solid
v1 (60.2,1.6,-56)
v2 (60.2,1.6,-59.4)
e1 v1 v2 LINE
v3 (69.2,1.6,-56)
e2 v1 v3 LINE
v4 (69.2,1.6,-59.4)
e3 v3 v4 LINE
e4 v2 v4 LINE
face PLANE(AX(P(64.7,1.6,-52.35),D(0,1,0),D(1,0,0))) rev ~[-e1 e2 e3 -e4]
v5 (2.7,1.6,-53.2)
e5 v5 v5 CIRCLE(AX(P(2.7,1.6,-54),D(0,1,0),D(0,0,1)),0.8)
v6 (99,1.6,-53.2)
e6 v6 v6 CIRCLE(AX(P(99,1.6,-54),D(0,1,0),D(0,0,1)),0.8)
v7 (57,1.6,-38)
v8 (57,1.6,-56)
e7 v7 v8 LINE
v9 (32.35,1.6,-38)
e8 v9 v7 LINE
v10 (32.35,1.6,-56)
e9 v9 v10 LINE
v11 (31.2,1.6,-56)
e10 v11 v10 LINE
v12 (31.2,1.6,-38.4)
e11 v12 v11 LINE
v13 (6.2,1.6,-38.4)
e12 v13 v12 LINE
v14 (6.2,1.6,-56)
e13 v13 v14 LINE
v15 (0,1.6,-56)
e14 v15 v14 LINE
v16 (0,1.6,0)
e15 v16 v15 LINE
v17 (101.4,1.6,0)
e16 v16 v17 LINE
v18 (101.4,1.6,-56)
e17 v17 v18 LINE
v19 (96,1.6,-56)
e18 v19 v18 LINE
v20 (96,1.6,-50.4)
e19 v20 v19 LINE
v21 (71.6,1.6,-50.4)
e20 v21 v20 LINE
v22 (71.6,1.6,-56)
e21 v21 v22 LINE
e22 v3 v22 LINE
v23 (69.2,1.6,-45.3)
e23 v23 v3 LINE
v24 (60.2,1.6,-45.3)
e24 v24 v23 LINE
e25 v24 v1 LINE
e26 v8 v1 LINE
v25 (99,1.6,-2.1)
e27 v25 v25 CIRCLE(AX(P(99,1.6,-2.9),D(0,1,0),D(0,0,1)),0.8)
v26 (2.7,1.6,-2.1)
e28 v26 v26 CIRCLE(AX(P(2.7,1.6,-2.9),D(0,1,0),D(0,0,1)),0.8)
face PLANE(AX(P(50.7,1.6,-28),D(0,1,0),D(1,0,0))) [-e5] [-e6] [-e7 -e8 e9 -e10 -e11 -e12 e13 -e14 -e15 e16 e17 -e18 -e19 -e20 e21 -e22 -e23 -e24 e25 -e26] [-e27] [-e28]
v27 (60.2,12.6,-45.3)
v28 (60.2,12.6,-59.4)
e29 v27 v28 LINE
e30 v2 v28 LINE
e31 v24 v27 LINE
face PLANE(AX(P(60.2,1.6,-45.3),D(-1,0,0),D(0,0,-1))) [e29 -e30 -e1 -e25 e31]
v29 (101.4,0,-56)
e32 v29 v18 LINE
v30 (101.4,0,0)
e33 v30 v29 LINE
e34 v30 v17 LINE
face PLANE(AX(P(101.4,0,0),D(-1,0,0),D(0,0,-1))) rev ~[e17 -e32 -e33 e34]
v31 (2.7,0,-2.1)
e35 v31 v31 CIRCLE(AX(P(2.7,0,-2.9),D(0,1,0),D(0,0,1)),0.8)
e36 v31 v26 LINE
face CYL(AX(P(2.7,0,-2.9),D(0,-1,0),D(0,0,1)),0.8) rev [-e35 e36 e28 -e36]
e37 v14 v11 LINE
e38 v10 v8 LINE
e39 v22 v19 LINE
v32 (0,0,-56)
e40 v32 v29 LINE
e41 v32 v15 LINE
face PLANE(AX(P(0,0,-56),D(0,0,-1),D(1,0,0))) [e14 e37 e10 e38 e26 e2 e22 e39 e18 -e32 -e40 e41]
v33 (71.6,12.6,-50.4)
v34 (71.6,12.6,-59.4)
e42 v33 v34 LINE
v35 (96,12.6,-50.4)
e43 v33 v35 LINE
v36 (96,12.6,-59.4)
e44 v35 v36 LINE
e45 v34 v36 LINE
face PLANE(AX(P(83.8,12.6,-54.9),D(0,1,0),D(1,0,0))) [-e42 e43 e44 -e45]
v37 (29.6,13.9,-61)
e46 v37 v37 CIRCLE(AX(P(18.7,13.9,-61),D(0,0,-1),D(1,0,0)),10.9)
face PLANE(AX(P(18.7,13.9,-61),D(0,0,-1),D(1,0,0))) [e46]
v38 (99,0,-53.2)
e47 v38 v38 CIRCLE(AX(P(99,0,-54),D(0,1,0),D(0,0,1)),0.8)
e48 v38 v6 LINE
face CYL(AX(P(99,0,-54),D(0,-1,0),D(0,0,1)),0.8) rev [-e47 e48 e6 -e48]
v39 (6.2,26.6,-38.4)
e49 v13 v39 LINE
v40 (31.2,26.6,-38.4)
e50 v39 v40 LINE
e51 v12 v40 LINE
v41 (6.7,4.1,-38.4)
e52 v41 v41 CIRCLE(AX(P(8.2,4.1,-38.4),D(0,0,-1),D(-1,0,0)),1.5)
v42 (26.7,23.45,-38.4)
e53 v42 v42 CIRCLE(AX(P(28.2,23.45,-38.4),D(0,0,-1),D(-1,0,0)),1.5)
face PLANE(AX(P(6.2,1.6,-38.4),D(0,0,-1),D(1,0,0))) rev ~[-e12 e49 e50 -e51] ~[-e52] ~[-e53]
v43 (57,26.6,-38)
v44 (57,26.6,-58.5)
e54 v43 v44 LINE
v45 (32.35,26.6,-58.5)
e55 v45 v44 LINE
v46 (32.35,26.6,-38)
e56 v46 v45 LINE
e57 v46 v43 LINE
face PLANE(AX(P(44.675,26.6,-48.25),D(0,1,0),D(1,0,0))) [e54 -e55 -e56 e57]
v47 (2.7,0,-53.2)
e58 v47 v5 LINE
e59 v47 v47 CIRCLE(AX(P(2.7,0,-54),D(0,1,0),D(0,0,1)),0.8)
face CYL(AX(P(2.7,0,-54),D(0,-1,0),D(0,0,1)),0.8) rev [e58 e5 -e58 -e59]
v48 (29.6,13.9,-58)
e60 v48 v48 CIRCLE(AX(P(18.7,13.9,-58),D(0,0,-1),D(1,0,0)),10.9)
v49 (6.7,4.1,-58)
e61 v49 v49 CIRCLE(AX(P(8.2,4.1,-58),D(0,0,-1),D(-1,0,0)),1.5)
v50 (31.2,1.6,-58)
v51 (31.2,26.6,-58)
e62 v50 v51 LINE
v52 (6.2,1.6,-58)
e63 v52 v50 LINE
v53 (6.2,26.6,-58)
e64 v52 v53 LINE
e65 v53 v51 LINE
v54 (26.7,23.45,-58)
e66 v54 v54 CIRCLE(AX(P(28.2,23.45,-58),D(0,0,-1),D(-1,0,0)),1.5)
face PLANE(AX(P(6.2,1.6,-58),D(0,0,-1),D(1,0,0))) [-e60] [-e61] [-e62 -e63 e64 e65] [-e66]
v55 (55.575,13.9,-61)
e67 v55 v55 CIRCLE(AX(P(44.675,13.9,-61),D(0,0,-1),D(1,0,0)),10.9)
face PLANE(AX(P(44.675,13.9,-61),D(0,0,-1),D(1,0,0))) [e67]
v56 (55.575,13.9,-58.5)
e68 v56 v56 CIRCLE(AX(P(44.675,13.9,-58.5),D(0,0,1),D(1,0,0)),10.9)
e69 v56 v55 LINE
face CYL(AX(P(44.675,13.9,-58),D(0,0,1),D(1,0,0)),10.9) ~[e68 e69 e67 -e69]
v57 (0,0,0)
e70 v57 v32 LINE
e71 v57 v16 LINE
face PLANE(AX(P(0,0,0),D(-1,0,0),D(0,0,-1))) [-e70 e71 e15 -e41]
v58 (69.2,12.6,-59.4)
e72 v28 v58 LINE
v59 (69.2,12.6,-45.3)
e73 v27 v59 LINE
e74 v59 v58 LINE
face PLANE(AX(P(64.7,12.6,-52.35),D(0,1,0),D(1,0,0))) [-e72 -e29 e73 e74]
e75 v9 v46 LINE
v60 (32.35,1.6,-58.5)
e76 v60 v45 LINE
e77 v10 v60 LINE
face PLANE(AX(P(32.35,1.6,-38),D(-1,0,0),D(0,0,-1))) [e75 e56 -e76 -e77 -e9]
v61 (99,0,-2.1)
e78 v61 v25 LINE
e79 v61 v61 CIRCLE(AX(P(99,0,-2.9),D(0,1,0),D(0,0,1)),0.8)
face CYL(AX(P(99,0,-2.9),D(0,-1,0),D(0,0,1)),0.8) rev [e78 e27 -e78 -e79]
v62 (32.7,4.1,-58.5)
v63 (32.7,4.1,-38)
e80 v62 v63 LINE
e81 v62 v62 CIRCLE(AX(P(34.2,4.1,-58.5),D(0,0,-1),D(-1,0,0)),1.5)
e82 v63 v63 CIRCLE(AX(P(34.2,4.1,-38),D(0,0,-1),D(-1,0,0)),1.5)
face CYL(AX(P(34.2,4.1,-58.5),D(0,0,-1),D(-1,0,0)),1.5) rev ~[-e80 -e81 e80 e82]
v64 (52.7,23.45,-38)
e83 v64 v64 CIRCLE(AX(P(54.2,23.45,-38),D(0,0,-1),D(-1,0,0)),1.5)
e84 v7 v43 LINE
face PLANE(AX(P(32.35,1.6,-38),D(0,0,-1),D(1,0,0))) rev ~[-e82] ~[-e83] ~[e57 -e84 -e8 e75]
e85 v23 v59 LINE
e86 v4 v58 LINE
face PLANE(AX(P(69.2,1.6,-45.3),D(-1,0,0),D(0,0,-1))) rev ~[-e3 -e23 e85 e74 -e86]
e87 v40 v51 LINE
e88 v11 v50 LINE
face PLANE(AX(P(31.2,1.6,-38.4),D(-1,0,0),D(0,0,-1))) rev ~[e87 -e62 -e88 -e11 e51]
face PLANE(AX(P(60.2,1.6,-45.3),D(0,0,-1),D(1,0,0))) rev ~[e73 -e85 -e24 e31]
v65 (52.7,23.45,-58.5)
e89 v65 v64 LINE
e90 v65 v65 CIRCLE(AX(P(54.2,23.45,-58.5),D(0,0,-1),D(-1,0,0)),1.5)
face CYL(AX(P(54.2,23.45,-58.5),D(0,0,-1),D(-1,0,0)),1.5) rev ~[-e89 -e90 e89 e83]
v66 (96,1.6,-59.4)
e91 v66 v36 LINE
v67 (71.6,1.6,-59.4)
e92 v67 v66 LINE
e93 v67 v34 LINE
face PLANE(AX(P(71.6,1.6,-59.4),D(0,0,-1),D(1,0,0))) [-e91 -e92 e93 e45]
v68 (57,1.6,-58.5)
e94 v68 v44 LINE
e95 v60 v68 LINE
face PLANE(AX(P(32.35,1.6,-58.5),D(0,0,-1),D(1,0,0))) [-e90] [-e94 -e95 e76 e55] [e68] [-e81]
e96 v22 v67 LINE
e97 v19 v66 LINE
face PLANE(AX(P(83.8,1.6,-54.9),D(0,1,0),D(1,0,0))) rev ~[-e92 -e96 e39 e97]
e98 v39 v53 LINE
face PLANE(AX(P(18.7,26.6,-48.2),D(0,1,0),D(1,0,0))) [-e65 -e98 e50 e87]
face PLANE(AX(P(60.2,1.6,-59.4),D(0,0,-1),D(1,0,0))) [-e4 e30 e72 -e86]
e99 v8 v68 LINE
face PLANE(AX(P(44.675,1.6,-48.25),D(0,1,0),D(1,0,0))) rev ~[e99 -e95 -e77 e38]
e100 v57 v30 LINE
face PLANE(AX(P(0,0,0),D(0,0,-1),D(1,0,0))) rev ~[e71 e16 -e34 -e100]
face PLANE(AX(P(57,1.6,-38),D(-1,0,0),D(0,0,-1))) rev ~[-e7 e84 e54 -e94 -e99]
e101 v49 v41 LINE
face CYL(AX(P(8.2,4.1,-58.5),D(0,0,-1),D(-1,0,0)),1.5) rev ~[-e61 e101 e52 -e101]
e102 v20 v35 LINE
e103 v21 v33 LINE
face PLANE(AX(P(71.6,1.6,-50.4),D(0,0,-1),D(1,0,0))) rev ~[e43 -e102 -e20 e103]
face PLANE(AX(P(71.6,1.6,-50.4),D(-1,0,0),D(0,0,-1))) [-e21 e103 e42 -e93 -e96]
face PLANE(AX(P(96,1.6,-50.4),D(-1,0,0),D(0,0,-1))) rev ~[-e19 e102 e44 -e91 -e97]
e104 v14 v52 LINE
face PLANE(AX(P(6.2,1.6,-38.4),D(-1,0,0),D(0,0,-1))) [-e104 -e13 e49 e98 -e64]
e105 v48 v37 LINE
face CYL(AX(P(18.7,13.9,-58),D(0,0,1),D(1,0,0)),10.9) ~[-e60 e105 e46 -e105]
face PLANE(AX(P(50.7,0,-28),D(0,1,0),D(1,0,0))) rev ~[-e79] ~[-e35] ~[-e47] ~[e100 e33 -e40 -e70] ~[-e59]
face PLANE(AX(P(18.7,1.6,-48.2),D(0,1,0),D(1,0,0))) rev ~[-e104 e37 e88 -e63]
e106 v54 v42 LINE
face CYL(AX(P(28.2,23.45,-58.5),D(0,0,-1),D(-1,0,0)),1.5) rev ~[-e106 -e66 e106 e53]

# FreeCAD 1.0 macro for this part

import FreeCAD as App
import Part
import Sketcher

V = App.Vector
Q = App.Units.Quantity


def add_polygon(sketch, points):
    """Adds a closed chain of lines whose ends are joined by coincident constraints."""
    first, n = sketch.GeometryCount, len(points)
    for a, b in zip(points, points[1:] + points[:1]):
        sketch.addGeometry(Part.LineSegment(App.Vector(*a, 0), App.Vector(*b, 0)), False)
    for i in range(n):
        sketch.addConstraint(Sketcher.Constraint("Coincident", first + i, 2, first + (i + 1) % n, 1))

doc = App.newDocument("Part")
params = doc.addObject("Spreadsheet::Sheet", "Params")
for row, (alias, value) in enumerate([
    ("sketch1_diameter", "1.6 mm"),
    ("sketch1_height", "56 mm"),
    ("sketch1_width", "101.4 mm"),
    ("pad1_length", "1.6 mm"),
    ("sketch2_width", "25 mm"),
    ("sketch2_height", "19.6 mm"),
    ("sketch2_height2", "20.5 mm"),
    ("sketch2_width2", "24.65 mm"),
    ("pad2_length", "25 mm"),
    ("sketch3_diameter", "3 mm"),
    ("sketch4_diameter", "21.8 mm"),
    ("pad3_length", "3 mm"),
    ("sketch5_width", "9 mm"),
    ("sketch5_width2", "24.4 mm"),
    ("sketch5_height", "14.1 mm"),
    ("pad4_length", "11 mm"),
], start=1):
    params.set(f"A{row}", alias)
    params.set(f"B{row}", "=" + value)
    params.setAlias(f"B{row}", alias)

body = doc.addObject("PartDesign::Body", "Body")

# Sketch on XZ plane
sketch1 = doc.addObject("Sketcher::SketchObject", "Sketch")
body.addObject(sketch1)
sketch1.AttachmentSupport = (doc.XZ_Plane, [""])
sketch1.MapMode = "FlatFace"
add_polygon(sketch1, [(0, -56), (0, 0), (101.4, 0), (101.4, -56)])  # lines 0-3
sketch1.addGeometry(Part.Circle(V(2.7, -2.9, 0), V(0, 0, 1), 0.8), False)  # 4
sketch1.addGeometry(Part.Circle(V(99, -2.9, 0), V(0, 0, 1), 0.8), False)  # 5
sketch1.addGeometry(Part.Circle(V(2.7, -54, 0), V(0, 0, 1), 0.8), False)  # 6
sketch1.addGeometry(Part.Circle(V(99, -54, 0), V(0, 0, 1), 0.8), False)  # 7
sketch1.addConstraint([
    Sketcher.Constraint("Vertical", 0),
    Sketcher.Constraint("Horizontal", 1),
    Sketcher.Constraint("Vertical", 2),
    Sketcher.Constraint("Horizontal", 3),
    Sketcher.Constraint("Coincident", 0, 2, -1, 1),
    Sketcher.Constraint("Equal", 4, 5),
    Sketcher.Constraint("Equal", 5, 6),
    Sketcher.Constraint("Equal", 6, 7),
    Sketcher.Constraint("Horizontal", 4, 3, 5, 3),
    Sketcher.Constraint("Horizontal", 6, 3, 7, 3),
    Sketcher.Constraint("Vertical", 4, 3, 6, 3),
    Sketcher.Constraint("Vertical", 5, 3, 7, 3),
    Sketcher.Constraint("Diameter", 4, Q("1.6 mm")),
    Sketcher.Constraint("DistanceY", 0, 1, 0, 2, Q("56 mm")),
    Sketcher.Constraint("DistanceX", 1, 1, 1, 2, Q("101.4 mm")),
    Sketcher.Constraint("DistanceX", -1, 1, 5, 3, Q("99 mm")),
    Sketcher.Constraint("DistanceY", 6, 3, -1, 1, Q("54 mm")),
    Sketcher.Constraint("DistanceX", -1, 1, 4, 3, Q("2.7 mm")),
    Sketcher.Constraint("DistanceY", 4, 3, -1, 1, Q("2.9 mm")),
])
sketch1.setExpression("Constraints[16]", "Params.sketch1_diameter")
sketch1.setExpression("Constraints[17]", "Params.sketch1_height")
sketch1.setExpression("Constraints[18]", "Params.sketch1_width")
pad1 = doc.addObject("PartDesign::Pad", "Pad")
body.addObject(pad1)
pad1.Profile = sketch1
pad1.setExpression("Length", "Params.pad1_length")
pad1.Reversed = True

# Sketch on XZ plane
sketch2 = doc.addObject("Sketcher::SketchObject", "Sketch001")
body.addObject(sketch2)
sketch2.AttachmentSupport = (doc.XZ_Plane, [""])
sketch2.MapMode = "FlatFace"
sketch2.AttachmentOffset = App.Placement(V(0, 0, -1.6), App.Rotation())
add_polygon(sketch2, [(6, -58), (6, -38), (31, -38), (31, -58)])  # lines 0-3
add_polygon(sketch2, [(32, -58), (32, -38), (57, -38), (57, -58)])  # lines 4-7
sketch2.addConstraint([
    Sketcher.Constraint("Vertical", 0),
    Sketcher.Constraint("Horizontal", 1),
    Sketcher.Constraint("Vertical", 2),
    Sketcher.Constraint("Horizontal", 3),
    Sketcher.Constraint("Vertical", 4),
    Sketcher.Constraint("Horizontal", 5),
    Sketcher.Constraint("Vertical", 6),
    Sketcher.Constraint("Horizontal", 7),
    Sketcher.Constraint("DistanceX", 1, 1, 1, 2, Q("25 mm")),
    Sketcher.Constraint("DistanceY", 0, 1, 0, 2, Q("19.6 mm")),
    Sketcher.Constraint("DistanceY", 4, 1, 4, 2, Q("20.5 mm")),
    Sketcher.Constraint("DistanceY", 2, 2, -1, 1, Q("58 mm")),
    Sketcher.Constraint("DistanceY", 4, 2, -1, 1, Q("38 mm")),
    Sketcher.Constraint("DistanceX", -1, 1, 5, 2, Q("57 mm")),
    Sketcher.Constraint("DistanceX", 5, 1, 5, 2, Q("24.65 mm")),
    Sketcher.Constraint("DistanceX", -1, 1, 0, 2, Q("6.2 mm")),
])
sketch2.setExpression("Constraints[16]", "Params.sketch2_width")
sketch2.setExpression("Constraints[17]", "Params.sketch2_height")
sketch2.setExpression("Constraints[18]", "Params.sketch2_height2")
sketch2.setExpression("Constraints[22]", "Params.sketch2_width2")
pad2 = doc.addObject("PartDesign::Pad", "Pad001")
body.addObject(pad2)
pad2.Profile = sketch2
pad2.setExpression("Length", "Params.pad2_length")
pad2.Reversed = True

# Sketch on XY plane
sketch3 = doc.addObject("Sketcher::SketchObject", "Sketch002")
body.addObject(sketch3)
sketch3.AttachmentSupport = (doc.XY_Plane, [""])
sketch3.MapMode = "FlatFace"
sketch3.AttachmentOffset = App.Placement(V(0, 0, -58.5), App.Rotation())
sketch3.addGeometry([
    Part.Circle(V(54.2, 23.4, 0), V(0, 0, 1), 1.5),
    Part.Circle(V(34.2, 4.1, 0), V(0, 0, 1), 1.5),
    Part.Circle(V(28.2, 23.4, 0), V(0, 0, 1), 1.5),
    Part.Circle(V(8.2, 4.1, 0), V(0, 0, 1), 1.5),
], False)
sketch3.addConstraint([
    Sketcher.Constraint("Equal", 0, 1),
    Sketcher.Constraint("Equal", 1, 2),
    Sketcher.Constraint("Equal", 2, 3),
    Sketcher.Constraint("Horizontal", 0, 3, 2, 3),
    Sketcher.Constraint("Horizontal", 1, 3, 3, 3),
    Sketcher.Constraint("Diameter", 0, Q("3 mm")),
    Sketcher.Constraint("DistanceX", 1, 3, 0, 3, Q("20 mm")),
    Sketcher.Constraint("DistanceX", 2, 3, 1, 3, Q("6 mm")),
    Sketcher.Constraint("DistanceX", 3, 3, 1, 3, Q("26 mm")),
    Sketcher.Constraint("DistanceX", -1, 1, 0, 3, Q("54.2 mm")),
    Sketcher.Constraint("DistanceY", -1, 1, 1, 3, Q("4.1 mm")),
    Sketcher.Constraint("DistanceY", -1, 1, 0, 3, Q("23.45 mm")),
])
sketch3.setExpression("Constraints[5]", "Params.sketch3_diameter")
pocket1 = doc.addObject("PartDesign::Pocket", "Pocket")
body.addObject(pocket1)
pocket1.Profile = sketch3
pocket1.Type = "ThroughAll"
pocket1.Reversed = True

# Sketch on XY plane
sketch4 = doc.addObject("Sketcher::SketchObject", "Sketch003")
body.addObject(sketch4)
sketch4.AttachmentSupport = (doc.XY_Plane, [""])
sketch4.MapMode = "FlatFace"
sketch4.AttachmentOffset = App.Placement(V(0, 0, -58), App.Rotation())
sketch4.addGeometry([
    Part.Circle(V(19, 14, 0), V(0, 0, 1), 11),
    Part.Circle(V(45, 14, 0), V(0, 0, 1), 11),
], False)
sketch4.addConstraint([
    Sketcher.Constraint("Equal", 0, 1),
    Sketcher.Constraint("Horizontal", 0, 3, 1, 3),
    Sketcher.Constraint("Diameter", 0, Q("21.8 mm")),
    Sketcher.Constraint("DistanceX", -1, 1, 0, 3, Q("18.7 mm")),
    Sketcher.Constraint("DistanceY", -1, 1, 0, 3, Q("13.9 mm")),
    Sketcher.Constraint("DistanceX", -1, 1, 1, 3, Q("44.675 mm")),
])
sketch4.setExpression("Constraints[2]", "Params.sketch4_diameter")
pad3 = doc.addObject("PartDesign::Pad", "Pad002")
body.addObject(pad3)
pad3.Profile = sketch4
pad3.setExpression("Length", "Params.pad3_length")
pad3.Reversed = True

# Sketch on XZ plane
sketch5 = doc.addObject("Sketcher::SketchObject", "Sketch004")
body.addObject(sketch5)
sketch5.AttachmentSupport = (doc.XZ_Plane, [""])
sketch5.MapMode = "FlatFace"
sketch5.AttachmentOffset = App.Placement(V(0, 0, -1.6), App.Rotation())
add_polygon(sketch5, [(60, -59), (60, -45), (69, -45), (69, -59)])  # lines 0-3
add_polygon(sketch5, [(72, -59), (72, -50), (96, -50), (96, -59)])  # lines 4-7
sketch5.addConstraint([
    Sketcher.Constraint("Vertical", 0),
    Sketcher.Constraint("Horizontal", 1),
    Sketcher.Constraint("Vertical", 2),
    Sketcher.Constraint("Horizontal", 3),
    Sketcher.Constraint("Vertical", 4),
    Sketcher.Constraint("Horizontal", 5),
    Sketcher.Constraint("Vertical", 6),
    Sketcher.Constraint("Horizontal", 7),
    Sketcher.Constraint("Horizontal", 3, 2, 6, 2),
    Sketcher.Constraint("Equal", 3, 4),
    Sketcher.Constraint("DistanceX", 1, 1, 1, 2, Q("9 mm")),
    Sketcher.Constraint("DistanceX", 5, 1, 5, 2, Q("24.4 mm")),
    Sketcher.Constraint("DistanceY", 0, 1, 0, 2, Q("14.1 mm")),
    Sketcher.Constraint("DistanceX", -1, 1, 5, 2, Q("96 mm")),
    Sketcher.Constraint("DistanceX", -1, 1, 0, 2, Q("60.2 mm")),
    Sketcher.Constraint("DistanceY", 0, 2, -1, 1, Q("45.3 mm")),
])
sketch5.setExpression("Constraints[18]", "Params.sketch5_width")
sketch5.setExpression("Constraints[19]", "Params.sketch5_width2")
sketch5.setExpression("Constraints[20]", "Params.sketch5_height")
pad4 = doc.addObject("PartDesign::Pad", "Pad003")
body.addObject(pad4)
pad4.Profile = sketch5
pad4.setExpression("Length", "Params.pad4_length")
pad4.Reversed = True

doc.recompute()
